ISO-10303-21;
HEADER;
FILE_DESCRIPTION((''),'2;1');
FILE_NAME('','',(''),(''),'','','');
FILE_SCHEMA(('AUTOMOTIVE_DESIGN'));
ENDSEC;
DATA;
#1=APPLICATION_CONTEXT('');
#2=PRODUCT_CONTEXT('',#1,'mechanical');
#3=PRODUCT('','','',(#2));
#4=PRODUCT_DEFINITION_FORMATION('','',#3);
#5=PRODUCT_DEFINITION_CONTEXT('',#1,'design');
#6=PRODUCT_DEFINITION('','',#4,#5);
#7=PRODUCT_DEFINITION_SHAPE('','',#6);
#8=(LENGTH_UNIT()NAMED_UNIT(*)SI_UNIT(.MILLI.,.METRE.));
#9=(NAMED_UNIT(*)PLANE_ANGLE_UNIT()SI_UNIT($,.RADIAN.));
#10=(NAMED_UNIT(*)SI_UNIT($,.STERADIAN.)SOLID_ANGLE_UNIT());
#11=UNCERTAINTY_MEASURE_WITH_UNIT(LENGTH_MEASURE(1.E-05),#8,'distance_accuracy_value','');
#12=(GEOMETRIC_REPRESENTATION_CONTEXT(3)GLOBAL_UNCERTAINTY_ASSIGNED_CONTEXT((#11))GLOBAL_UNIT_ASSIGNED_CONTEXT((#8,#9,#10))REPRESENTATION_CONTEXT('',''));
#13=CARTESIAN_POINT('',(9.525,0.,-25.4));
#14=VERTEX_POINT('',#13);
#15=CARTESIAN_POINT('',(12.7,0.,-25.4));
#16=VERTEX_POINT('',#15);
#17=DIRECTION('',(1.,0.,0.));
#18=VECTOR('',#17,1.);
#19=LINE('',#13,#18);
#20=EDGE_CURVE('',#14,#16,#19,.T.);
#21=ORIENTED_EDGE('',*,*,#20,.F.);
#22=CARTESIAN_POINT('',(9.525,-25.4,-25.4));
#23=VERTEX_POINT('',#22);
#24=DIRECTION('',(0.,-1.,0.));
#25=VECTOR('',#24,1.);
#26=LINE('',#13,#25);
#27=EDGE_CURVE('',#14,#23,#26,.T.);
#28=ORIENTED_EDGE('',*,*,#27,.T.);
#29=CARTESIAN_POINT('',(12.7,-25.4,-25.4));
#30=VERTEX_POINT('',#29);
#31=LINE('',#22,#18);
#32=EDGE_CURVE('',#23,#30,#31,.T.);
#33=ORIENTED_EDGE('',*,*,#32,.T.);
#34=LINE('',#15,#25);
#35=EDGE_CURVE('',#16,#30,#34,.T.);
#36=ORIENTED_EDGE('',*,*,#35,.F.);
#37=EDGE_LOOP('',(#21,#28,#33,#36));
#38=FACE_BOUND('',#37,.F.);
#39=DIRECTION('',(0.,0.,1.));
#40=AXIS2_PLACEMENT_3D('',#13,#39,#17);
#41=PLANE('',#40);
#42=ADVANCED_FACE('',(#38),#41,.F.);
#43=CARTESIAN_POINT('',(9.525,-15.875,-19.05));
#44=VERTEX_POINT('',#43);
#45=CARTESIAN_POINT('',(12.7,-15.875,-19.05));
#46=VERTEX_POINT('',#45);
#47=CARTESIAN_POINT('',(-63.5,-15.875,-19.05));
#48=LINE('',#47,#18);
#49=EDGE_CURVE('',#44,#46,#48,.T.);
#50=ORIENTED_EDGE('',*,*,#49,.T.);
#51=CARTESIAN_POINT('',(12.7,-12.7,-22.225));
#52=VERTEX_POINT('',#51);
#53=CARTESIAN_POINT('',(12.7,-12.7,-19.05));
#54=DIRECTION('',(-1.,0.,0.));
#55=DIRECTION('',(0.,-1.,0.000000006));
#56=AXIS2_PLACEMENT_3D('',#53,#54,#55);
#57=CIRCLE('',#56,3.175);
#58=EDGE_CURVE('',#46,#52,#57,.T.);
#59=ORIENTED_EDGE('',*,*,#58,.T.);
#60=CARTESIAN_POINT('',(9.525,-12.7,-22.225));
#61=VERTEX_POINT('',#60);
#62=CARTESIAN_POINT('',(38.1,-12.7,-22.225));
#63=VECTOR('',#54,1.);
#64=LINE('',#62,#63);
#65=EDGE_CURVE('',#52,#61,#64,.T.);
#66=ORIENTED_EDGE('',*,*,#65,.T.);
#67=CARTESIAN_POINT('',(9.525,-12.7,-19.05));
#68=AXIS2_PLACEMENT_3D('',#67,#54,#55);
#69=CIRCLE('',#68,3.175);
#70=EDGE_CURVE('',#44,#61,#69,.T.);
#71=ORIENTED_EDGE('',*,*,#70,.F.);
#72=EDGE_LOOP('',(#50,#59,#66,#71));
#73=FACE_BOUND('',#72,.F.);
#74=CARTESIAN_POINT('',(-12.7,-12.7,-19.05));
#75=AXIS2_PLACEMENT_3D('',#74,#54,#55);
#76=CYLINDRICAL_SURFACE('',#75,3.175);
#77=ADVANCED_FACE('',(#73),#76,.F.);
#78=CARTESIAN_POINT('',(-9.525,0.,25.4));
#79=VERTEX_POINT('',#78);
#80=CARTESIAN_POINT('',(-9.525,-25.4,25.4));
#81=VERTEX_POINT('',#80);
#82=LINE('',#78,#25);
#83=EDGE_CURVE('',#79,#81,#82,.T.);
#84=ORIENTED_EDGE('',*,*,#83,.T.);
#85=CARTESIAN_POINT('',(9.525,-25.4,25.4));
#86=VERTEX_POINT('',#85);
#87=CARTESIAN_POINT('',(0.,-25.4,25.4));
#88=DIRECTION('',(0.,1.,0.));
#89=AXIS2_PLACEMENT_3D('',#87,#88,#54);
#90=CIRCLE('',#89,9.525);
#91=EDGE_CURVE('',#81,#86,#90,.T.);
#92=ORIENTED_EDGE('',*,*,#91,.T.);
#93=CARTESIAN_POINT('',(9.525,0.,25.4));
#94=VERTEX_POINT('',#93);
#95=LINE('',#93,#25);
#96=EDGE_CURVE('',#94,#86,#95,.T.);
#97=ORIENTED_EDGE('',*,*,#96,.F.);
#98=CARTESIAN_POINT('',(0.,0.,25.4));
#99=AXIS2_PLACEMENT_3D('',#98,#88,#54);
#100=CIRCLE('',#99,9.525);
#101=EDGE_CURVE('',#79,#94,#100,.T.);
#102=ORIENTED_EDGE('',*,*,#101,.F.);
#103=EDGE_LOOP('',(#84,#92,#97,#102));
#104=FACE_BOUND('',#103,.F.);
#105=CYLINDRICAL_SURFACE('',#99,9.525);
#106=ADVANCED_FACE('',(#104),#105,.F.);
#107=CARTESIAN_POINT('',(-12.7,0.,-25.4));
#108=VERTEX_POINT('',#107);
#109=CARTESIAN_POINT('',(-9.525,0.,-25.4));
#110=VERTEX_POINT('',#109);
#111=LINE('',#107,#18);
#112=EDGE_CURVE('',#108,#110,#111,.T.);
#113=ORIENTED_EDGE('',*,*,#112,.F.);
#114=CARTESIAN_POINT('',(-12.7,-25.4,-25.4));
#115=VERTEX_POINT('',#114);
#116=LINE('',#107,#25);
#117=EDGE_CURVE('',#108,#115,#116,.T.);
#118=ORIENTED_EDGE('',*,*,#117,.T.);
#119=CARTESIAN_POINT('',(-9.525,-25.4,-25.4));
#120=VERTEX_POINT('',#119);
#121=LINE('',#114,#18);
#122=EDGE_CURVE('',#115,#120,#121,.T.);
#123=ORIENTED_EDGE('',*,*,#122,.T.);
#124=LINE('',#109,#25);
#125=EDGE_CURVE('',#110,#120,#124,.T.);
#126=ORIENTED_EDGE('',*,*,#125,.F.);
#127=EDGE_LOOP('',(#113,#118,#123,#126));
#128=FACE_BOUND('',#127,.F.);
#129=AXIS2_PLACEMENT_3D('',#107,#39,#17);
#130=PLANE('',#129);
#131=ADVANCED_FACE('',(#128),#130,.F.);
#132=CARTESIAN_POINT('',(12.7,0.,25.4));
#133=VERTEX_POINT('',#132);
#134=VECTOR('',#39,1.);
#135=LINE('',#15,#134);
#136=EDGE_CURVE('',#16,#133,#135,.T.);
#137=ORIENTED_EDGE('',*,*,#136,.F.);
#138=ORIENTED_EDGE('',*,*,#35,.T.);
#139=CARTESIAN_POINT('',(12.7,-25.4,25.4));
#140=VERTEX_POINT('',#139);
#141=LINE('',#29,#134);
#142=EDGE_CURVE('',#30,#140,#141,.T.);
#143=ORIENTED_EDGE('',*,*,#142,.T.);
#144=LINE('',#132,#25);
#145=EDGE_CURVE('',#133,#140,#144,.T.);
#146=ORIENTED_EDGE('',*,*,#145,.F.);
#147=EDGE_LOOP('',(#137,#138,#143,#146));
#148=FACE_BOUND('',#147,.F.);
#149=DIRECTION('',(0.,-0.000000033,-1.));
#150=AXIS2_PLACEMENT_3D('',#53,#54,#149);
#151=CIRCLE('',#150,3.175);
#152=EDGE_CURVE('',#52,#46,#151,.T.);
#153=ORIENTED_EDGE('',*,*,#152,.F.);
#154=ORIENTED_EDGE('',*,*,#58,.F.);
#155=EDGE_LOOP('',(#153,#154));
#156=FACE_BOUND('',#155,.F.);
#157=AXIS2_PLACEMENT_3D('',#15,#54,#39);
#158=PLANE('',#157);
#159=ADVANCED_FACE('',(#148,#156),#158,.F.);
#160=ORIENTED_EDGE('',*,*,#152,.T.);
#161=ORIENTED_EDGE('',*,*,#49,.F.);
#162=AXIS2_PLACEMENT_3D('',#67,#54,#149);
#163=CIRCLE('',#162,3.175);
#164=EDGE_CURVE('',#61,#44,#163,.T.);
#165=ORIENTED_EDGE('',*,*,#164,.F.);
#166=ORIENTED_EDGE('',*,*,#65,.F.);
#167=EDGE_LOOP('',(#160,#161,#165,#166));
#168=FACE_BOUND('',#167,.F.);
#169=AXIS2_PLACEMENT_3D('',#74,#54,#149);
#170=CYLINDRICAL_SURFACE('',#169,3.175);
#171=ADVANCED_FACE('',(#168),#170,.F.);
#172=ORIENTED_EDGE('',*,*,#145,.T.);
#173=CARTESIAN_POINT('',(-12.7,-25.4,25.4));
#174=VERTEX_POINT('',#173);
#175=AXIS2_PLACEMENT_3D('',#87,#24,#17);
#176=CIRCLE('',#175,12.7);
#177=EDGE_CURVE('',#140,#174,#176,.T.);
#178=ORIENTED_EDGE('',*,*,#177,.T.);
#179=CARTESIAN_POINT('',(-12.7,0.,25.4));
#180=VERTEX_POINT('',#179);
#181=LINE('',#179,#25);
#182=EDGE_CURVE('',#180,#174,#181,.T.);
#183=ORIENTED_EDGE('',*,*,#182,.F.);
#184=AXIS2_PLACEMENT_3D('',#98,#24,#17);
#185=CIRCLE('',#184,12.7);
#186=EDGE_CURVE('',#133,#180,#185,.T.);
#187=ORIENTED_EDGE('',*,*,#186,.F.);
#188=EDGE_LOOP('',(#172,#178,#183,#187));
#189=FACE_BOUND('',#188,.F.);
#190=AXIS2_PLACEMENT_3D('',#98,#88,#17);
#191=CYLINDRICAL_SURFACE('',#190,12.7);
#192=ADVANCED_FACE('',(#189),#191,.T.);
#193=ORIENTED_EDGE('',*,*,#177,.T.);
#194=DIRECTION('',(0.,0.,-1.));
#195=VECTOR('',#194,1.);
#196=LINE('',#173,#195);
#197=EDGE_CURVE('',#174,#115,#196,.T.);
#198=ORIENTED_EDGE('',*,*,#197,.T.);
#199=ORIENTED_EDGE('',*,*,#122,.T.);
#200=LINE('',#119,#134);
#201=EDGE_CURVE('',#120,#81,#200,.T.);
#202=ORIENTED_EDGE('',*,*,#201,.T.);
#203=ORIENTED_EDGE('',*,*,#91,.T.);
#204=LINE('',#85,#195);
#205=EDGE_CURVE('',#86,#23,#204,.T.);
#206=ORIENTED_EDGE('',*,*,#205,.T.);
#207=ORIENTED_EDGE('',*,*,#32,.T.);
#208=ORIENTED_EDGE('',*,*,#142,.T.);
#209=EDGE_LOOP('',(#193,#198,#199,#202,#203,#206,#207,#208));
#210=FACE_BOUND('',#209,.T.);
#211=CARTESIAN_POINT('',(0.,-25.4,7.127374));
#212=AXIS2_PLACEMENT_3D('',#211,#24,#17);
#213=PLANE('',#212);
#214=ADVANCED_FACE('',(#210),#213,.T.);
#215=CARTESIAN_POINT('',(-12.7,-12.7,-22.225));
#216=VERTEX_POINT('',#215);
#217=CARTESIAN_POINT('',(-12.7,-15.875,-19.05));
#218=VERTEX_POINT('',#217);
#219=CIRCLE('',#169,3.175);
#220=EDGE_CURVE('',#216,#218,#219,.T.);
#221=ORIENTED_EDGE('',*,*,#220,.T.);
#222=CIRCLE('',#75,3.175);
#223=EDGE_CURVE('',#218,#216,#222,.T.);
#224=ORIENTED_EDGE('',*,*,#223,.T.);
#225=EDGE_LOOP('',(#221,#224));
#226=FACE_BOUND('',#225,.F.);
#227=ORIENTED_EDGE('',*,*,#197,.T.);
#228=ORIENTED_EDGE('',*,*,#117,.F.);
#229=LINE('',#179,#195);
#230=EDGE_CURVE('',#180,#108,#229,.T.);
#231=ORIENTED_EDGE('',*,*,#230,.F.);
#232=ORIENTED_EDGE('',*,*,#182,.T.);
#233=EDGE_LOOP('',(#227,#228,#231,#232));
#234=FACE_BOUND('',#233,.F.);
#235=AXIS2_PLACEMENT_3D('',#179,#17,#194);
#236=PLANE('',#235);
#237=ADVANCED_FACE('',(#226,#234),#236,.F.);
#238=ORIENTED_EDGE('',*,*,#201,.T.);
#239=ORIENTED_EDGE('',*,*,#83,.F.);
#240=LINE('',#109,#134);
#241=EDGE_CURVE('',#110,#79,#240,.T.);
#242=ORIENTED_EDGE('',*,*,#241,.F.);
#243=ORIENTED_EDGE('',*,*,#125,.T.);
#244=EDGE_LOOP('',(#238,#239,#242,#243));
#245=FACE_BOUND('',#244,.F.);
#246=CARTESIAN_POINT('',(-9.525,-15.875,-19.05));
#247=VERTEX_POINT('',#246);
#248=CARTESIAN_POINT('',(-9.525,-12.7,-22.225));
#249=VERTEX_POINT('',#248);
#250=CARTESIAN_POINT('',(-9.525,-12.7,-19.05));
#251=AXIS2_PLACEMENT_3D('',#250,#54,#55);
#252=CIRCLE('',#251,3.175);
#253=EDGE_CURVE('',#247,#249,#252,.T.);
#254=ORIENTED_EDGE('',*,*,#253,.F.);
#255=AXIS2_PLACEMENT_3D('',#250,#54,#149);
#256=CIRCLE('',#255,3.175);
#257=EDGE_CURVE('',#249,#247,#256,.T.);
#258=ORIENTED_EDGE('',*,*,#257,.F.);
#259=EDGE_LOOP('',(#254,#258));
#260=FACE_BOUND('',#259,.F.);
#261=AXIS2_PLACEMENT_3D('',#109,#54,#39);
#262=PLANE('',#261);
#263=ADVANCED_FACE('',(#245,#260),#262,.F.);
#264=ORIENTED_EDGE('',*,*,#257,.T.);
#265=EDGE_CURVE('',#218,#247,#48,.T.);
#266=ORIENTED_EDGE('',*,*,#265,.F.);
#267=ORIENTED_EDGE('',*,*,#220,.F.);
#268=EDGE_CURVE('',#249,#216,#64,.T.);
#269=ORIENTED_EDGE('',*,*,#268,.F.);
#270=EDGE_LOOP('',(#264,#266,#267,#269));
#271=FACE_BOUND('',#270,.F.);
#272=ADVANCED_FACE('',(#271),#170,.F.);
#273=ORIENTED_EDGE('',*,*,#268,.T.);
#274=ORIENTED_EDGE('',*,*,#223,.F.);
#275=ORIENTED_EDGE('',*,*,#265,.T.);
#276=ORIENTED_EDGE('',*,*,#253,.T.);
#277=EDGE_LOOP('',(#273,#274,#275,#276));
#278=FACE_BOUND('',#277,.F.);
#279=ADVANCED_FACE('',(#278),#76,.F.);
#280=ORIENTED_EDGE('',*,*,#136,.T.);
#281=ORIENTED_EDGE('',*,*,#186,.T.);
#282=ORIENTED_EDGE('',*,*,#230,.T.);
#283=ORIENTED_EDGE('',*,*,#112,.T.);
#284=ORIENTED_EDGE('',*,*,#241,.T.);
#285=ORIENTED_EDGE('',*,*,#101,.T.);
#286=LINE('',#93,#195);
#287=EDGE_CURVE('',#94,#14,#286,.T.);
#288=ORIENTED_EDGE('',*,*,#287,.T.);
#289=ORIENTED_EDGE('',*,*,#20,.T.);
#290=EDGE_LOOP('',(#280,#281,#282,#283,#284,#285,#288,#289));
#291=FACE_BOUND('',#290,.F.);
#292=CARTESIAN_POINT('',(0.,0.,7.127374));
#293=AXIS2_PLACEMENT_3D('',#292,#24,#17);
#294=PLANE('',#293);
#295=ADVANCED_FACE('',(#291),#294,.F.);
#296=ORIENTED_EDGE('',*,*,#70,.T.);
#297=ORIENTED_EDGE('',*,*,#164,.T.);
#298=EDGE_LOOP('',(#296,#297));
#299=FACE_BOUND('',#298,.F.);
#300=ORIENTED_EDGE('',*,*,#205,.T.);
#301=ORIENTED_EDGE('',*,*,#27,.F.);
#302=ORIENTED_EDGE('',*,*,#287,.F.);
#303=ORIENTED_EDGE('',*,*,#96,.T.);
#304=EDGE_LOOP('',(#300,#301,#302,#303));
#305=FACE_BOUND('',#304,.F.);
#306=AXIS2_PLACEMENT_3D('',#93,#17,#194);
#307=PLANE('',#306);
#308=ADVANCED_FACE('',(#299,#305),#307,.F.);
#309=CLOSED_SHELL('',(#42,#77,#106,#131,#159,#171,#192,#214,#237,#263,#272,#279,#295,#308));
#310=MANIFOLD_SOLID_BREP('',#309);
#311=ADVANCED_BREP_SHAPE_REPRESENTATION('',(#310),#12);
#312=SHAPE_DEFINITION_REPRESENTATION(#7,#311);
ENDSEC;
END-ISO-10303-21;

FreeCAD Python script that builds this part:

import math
import FreeCAD as App
import Part
import Sketcher
Q = App.Units.Quantity

doc = App.newDocument("Part")
body = doc.addObject("PartDesign::Body", "Body")

# Sketch on XZ plane
sketch1 = doc.addObject("Sketcher::SketchObject", "Sketch")
body.addObject(sketch1)
sketch1.AttachmentSupport = (doc.XZ_Plane, [""])
sketch1.MapMode = "FlatFace"
sketch1.addGeometry([
    Part.ArcOfCircle(Part.Circle(App.Vector(0, 25.4, 0), App.Vector(0, 0, 1), 12.7), math.radians(0), math.radians(180)),  # 0
    Part.LineSegment(App.Vector(-12.7, 25.4, 0), App.Vector(-12.7, -25.4, 0)),  # 1
    Part.LineSegment(App.Vector(-12.7, -25.4, 0), App.Vector(-9.5, -25.4, 0)),  # 2
    Part.LineSegment(App.Vector(-9.5, -25.4, 0), App.Vector(-9.5, 25.4, 0)),  # 3
    Part.ArcOfCircle(Part.Circle(App.Vector(0, 25.4, 0), App.Vector(0, 0, 1), 9.5), math.radians(0), math.radians(180)),  # 4
    Part.LineSegment(App.Vector(9.5, 25.4, 0), App.Vector(9.5, -25.4, 0)),  # 5
    Part.LineSegment(App.Vector(9.5, -25.4, 0), App.Vector(12.7, -25.4, 0)),  # 6
    Part.LineSegment(App.Vector(12.7, -25.4, 0), App.Vector(12.7, 25.4, 0)),  # 7
], False)
sketch1.addConstraint([
    Sketcher.Constraint("Tangent", 0, 2, 1, 1),
    Sketcher.Constraint("Coincident", 1, 2, 2, 1),
    Sketcher.Constraint("Coincident", 2, 2, 3, 1),
    Sketcher.Constraint("Tangent", 3, 2, 4, 2),
    Sketcher.Constraint("Tangent", 4, 1, 5, 1),
    Sketcher.Constraint("Coincident", 5, 2, 6, 1),
    Sketcher.Constraint("Coincident", 6, 2, 7, 1),
    Sketcher.Constraint("Tangent", 7, 2, 0, 1),
    Sketcher.Constraint("Vertical", 1),
    Sketcher.Constraint("Horizontal", 2),
    Sketcher.Constraint("Vertical", 3),
    Sketcher.Constraint("Vertical", 5),
    Sketcher.Constraint("Horizontal", 6),
    Sketcher.Constraint("Vertical", 7),
    Sketcher.Constraint("Coincident", 4, 3, 0, 3),
    Sketcher.Constraint("Symmetric", 2, 2, 4, 1, -1, 1),
    Sketcher.Constraint("Horizontal", 2, 2, 5, 2),
    Sketcher.Constraint("Radius", 0, Q("0.5 in")),
    Sketcher.Constraint("DistanceY", 1, 2, 1, 1, Q("2 in")),
    Sketcher.Constraint("Radius", 4, Q("0.375 in")),
])
pad1 = doc.addObject("PartDesign::Pad", "Pad")
body.addObject(pad1)
pad1.Profile = sketch1
pad1.Length = Q("1 in")

# Sketch on YZ plane
sketch2 = doc.addObject("Sketcher::SketchObject", "Sketch001")
body.addObject(sketch2)
sketch2.AttachmentSupport = (doc.YZ_Plane, [""])
sketch2.MapMode = "FlatFace"
sketch2.AttachmentOffset = App.Placement(App.Vector(0, 0, -0.5 * 25.4), App.Rotation())
sketch2.addGeometry([
    Part.ArcOfCircle(Part.Circle(App.Vector(-12.7, -19.1, 0), App.Vector(0, 0, 1), 3.2), math.radians(-90), math.radians(180)),
    Part.ArcOfCircle(Part.Circle(App.Vector(-12.7, -19, 0), App.Vector(0, 0, 1), 3.2), math.radians(-180), math.radians(-90)),
], False)
sketch2.addConstraint([
    Sketcher.Constraint("Tangent", 0, 1, 1, 2),
    Sketcher.Constraint("Coincident", 1, 1, 0, 2),
    Sketcher.Constraint("Horizontal", 0, 3, 1, 1),
    Sketcher.Constraint("Vertical", 1, 3, 0, 1),
    Sketcher.Constraint("Radius", 0, Q("0.125 in")),
    Sketcher.Constraint("DistanceX", 0, 3, -1, 1, Q("0.5 in")),
    Sketcher.Constraint("DistanceY", 0, 3, -1, 1, Q("0.75 in")),
])
pocket1 = doc.addObject("PartDesign::Pocket", "Pocket")
body.addObject(pocket1)
pocket1.Profile = sketch2
pocket1.Length = Q("4 in")
pocket1.Midplane = True

doc.recompute()
